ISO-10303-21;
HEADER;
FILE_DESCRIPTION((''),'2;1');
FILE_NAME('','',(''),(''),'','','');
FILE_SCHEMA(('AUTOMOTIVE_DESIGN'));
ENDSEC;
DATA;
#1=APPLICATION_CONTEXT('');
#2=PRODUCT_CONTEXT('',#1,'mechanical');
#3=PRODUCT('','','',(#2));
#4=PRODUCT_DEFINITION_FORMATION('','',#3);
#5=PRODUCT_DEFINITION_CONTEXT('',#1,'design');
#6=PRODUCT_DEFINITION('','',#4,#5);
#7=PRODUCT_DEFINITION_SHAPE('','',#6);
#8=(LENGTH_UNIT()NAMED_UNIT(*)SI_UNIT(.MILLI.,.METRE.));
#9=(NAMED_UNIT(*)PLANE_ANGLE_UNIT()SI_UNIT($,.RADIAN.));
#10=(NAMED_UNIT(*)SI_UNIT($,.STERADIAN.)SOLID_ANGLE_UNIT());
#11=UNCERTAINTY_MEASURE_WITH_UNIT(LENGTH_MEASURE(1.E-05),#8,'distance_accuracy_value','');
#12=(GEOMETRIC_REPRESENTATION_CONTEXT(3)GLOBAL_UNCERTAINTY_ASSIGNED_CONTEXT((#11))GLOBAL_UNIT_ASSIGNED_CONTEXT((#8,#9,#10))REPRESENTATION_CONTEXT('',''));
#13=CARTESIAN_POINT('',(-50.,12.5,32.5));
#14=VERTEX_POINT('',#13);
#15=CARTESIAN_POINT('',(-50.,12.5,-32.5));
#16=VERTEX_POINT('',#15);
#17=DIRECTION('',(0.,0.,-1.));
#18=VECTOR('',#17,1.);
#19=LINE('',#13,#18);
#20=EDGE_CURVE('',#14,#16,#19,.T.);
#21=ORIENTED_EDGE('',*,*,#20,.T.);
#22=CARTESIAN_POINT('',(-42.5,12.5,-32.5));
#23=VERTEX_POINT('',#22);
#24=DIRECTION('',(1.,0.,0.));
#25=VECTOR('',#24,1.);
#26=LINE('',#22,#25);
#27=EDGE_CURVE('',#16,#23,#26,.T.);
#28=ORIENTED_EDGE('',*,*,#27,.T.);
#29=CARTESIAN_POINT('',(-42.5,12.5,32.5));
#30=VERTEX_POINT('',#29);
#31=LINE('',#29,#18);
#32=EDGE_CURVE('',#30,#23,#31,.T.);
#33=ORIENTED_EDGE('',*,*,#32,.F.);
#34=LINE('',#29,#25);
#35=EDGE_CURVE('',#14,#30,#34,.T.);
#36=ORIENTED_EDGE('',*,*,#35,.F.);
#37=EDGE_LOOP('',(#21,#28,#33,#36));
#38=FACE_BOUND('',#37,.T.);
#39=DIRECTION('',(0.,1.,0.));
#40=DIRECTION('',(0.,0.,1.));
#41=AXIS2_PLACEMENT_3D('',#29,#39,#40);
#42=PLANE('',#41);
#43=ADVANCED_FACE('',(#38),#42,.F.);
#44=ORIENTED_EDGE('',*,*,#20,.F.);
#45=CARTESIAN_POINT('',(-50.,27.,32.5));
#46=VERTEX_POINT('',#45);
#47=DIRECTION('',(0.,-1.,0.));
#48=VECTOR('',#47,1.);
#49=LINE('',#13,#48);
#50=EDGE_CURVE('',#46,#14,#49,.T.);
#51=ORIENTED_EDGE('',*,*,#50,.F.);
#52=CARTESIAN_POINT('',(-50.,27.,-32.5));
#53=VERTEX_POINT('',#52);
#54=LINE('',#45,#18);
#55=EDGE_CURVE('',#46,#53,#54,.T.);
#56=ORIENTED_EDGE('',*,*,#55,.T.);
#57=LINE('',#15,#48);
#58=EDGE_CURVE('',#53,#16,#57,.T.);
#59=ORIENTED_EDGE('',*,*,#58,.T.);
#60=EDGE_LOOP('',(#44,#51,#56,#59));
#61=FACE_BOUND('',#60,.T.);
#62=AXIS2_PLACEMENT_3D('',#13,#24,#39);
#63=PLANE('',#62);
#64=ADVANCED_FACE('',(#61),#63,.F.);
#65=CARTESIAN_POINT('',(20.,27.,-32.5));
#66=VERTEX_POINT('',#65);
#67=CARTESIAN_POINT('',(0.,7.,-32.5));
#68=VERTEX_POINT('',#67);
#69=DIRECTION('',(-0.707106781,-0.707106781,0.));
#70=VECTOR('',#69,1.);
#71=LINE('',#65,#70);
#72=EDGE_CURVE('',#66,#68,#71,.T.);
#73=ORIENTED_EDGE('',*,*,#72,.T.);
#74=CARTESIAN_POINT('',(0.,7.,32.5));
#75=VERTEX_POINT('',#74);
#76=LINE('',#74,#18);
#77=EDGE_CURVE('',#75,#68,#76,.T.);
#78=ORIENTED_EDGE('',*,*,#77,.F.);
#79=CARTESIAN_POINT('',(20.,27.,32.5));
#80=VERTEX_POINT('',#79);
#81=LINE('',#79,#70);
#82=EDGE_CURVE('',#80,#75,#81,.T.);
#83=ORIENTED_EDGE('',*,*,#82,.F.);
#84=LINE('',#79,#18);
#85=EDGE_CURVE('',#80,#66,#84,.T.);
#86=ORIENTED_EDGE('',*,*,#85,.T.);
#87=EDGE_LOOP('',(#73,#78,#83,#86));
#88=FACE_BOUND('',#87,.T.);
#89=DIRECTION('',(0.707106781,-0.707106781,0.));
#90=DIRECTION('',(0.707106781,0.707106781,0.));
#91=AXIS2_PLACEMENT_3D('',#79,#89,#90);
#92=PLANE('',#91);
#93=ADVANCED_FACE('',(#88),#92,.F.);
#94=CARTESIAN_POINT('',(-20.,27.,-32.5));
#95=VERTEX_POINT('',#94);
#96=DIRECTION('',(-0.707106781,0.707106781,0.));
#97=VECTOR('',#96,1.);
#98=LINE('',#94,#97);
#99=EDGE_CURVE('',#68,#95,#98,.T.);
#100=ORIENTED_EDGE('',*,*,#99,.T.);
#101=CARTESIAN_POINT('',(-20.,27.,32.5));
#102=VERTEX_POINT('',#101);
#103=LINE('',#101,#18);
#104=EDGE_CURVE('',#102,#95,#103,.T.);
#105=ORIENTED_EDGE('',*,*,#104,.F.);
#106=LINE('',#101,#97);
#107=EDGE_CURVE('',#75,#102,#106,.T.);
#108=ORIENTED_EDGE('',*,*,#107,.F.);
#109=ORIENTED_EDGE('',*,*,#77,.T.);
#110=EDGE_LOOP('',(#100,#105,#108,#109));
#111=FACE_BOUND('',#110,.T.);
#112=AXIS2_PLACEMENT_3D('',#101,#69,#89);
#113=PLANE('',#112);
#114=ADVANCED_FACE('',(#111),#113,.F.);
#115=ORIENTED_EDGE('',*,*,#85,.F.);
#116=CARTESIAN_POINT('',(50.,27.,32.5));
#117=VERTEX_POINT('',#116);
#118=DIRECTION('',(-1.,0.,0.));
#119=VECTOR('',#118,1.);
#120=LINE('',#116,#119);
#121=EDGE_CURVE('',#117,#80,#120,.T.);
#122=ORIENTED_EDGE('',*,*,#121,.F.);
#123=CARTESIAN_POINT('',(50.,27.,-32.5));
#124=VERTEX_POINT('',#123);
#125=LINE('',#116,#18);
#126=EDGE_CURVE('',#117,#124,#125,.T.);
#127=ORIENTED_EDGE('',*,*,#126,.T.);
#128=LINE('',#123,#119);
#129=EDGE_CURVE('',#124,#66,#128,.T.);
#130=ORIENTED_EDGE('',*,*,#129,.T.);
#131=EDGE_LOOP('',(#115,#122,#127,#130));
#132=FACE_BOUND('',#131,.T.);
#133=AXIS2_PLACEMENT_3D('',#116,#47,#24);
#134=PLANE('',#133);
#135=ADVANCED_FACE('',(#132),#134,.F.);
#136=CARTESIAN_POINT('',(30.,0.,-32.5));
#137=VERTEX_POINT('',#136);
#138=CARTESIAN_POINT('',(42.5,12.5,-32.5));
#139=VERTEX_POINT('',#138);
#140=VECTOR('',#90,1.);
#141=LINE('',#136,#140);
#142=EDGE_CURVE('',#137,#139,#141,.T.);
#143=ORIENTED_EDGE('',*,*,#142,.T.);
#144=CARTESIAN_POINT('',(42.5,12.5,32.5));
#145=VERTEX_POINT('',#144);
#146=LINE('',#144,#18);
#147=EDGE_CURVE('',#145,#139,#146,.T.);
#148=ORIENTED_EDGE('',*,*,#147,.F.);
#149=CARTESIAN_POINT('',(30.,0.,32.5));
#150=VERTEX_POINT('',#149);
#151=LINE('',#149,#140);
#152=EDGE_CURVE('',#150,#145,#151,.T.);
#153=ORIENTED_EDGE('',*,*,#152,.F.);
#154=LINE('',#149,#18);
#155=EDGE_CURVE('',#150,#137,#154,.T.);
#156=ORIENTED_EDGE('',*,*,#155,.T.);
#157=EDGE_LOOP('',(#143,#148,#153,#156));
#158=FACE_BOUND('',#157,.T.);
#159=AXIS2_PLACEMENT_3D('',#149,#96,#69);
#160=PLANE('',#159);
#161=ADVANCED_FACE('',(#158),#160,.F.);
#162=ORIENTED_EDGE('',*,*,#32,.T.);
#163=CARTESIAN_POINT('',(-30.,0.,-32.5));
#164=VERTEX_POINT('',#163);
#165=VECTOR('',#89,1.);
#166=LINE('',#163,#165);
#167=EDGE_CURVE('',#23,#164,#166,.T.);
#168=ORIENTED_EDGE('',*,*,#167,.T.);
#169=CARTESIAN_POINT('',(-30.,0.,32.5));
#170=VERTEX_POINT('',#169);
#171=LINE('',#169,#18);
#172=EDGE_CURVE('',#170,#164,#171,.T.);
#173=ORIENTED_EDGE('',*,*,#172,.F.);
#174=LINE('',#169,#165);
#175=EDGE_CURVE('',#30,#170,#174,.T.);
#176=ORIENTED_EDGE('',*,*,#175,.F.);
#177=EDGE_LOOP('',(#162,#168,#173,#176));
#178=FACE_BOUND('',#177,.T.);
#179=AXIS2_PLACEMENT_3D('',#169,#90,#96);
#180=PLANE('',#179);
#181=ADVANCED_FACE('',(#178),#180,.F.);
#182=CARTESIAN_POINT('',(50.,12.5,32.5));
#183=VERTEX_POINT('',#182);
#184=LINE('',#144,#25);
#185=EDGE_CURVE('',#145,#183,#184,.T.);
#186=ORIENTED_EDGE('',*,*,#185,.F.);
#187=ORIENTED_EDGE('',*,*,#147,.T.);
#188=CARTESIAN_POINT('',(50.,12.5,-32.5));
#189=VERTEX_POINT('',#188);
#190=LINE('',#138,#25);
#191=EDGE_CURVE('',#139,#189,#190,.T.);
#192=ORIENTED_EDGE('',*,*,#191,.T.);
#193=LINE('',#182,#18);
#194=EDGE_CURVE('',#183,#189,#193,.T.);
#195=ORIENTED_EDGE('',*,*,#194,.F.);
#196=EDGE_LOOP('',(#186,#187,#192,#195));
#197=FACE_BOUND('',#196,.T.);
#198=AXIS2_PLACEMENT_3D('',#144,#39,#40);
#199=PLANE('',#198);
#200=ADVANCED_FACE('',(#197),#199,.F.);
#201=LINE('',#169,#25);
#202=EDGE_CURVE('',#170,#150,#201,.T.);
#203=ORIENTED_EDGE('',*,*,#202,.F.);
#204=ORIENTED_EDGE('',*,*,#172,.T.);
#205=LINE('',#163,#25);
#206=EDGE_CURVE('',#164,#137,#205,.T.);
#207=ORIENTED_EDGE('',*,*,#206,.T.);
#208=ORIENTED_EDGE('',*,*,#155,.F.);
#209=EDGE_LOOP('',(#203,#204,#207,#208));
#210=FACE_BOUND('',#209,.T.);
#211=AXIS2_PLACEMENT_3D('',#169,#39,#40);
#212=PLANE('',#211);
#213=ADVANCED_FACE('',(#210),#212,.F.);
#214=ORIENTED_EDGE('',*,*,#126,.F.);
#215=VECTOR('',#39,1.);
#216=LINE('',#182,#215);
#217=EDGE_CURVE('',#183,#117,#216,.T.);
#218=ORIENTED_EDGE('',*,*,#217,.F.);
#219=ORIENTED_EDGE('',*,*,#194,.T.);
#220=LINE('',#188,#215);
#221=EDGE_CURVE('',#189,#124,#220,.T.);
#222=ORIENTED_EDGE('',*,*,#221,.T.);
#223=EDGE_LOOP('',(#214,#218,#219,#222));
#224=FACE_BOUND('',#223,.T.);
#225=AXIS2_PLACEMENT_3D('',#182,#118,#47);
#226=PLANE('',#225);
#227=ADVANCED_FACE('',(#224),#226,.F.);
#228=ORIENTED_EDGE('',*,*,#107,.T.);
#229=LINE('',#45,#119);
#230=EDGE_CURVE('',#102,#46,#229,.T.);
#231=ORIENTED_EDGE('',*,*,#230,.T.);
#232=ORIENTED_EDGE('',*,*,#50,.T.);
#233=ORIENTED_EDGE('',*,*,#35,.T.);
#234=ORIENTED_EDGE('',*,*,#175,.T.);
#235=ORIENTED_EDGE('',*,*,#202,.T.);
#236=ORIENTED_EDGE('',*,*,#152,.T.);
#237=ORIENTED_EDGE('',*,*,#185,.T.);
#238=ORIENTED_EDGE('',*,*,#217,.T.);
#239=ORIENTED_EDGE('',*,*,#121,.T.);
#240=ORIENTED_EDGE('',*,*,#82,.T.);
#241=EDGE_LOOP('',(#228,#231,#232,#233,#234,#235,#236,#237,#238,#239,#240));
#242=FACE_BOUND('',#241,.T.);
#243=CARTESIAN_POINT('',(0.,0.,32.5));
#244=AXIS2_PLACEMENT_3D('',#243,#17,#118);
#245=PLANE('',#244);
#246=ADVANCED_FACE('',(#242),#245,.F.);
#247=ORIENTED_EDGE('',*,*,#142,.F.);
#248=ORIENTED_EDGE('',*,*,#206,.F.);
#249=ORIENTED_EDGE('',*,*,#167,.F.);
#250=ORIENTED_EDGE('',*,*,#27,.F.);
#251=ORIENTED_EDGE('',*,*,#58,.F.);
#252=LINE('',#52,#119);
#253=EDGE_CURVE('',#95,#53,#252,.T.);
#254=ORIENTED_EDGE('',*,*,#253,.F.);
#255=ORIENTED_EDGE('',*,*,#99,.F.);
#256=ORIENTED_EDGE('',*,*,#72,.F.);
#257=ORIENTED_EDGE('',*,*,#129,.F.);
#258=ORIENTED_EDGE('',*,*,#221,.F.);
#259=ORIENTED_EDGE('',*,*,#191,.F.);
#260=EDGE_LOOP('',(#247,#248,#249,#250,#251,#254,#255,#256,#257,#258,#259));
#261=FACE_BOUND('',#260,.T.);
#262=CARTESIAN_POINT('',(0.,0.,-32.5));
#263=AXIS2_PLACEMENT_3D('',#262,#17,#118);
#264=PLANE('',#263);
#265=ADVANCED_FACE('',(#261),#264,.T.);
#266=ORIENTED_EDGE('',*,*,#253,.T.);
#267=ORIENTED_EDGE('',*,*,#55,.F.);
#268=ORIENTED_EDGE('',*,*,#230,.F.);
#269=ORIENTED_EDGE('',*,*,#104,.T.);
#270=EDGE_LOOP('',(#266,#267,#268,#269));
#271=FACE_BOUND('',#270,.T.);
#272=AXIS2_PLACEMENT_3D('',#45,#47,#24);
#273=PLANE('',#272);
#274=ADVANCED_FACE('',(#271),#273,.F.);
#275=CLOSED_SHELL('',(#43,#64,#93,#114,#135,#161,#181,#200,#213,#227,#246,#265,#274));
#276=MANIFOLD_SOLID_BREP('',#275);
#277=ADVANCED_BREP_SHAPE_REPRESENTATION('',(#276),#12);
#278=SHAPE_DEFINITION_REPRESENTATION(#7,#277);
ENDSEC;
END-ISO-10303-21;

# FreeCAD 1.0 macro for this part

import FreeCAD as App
import Part
import Sketcher
from FreeCAD import Vector
Q = App.Units.Quantity

doc = App.newDocument("Part")
body = doc.addObject("PartDesign::Body", "Body")

# Sketch on XY plane
sketch1 = body.newObject("Sketcher::SketchObject", "Sketch")
sketch1.AttachmentSupport = (doc.getObject("XY_Plane"), [""])
sketch1.MapMode = "FlatFace"
sketch1.addGeometry(Part.LineSegment(Vector(-30, 0, 0), Vector(30, 0, 0)), False)
sketch1.addGeometry(Part.LineSegment(Vector(30, 0, 0), Vector(42.5, 12.5, 0)), False)
sketch1.addGeometry(Part.LineSegment(Vector(42.5, 12.5, 0), Vector(50, 12.5, 0)), False)
sketch1.addGeometry(Part.LineSegment(Vector(50, 12.5, 0), Vector(50, 27, 0)), False)
sketch1.addGeometry(Part.LineSegment(Vector(50, 27, 0), Vector(20, 27, 0)), False)
sketch1.addGeometry(Part.LineSegment(Vector(20, 27, 0), Vector(0, 7, 0)), False)
sketch1.addGeometry(Part.LineSegment(Vector(0, 7, 0), Vector(-20, 27, 0)), False)
sketch1.addGeometry(Part.LineSegment(Vector(-20, 27, 0), Vector(-50, 27, 0)), False)
sketch1.addGeometry(Part.LineSegment(Vector(-50, 27, 0), Vector(-50, 12.5, 0)), False)
sketch1.addGeometry(Part.LineSegment(Vector(-50, 12.5, 0), Vector(-42.5, 12.5, 0)), False)
sketch1.addGeometry(Part.LineSegment(Vector(-42.5, 12.5, 0), Vector(-30, 0, 0)), False)
sketch1.addConstraint(Sketcher.Constraint("Coincident", 0, 2, 1, 1))
sketch1.addConstraint(Sketcher.Constraint("Coincident", 1, 2, 2, 1))
sketch1.addConstraint(Sketcher.Constraint("Coincident", 2, 2, 3, 1))
sketch1.addConstraint(Sketcher.Constraint("Coincident", 3, 2, 4, 1))
sketch1.addConstraint(Sketcher.Constraint("Coincident", 4, 2, 5, 1))
sketch1.addConstraint(Sketcher.Constraint("Coincident", 5, 2, 6, 1))
sketch1.addConstraint(Sketcher.Constraint("Coincident", 6, 2, 7, 1))
sketch1.addConstraint(Sketcher.Constraint("Coincident", 7, 2, 8, 1))
sketch1.addConstraint(Sketcher.Constraint("Coincident", 8, 2, 9, 1))
sketch1.addConstraint(Sketcher.Constraint("Coincident", 9, 2, 10, 1))
sketch1.addConstraint(Sketcher.Constraint("Coincident", 10, 2, 0, 1))
sketch1.addConstraint(Sketcher.Constraint("Horizontal", 0))
sketch1.addConstraint(Sketcher.Constraint("Horizontal", 2))
sketch1.addConstraint(Sketcher.Constraint("Vertical", 3))
sketch1.addConstraint(Sketcher.Constraint("Horizontal", 4))
sketch1.addConstraint(Sketcher.Constraint("Horizontal", 7))
sketch1.addConstraint(Sketcher.Constraint("Vertical", 8))
sketch1.addConstraint(Sketcher.Constraint("Horizontal", 9))
sketch1.addConstraint(Sketcher.Constraint("Symmetric", 0, 2, 10, 2, -1, 1))
sketch1.addConstraint(Sketcher.Constraint("Symmetric", 4, 2, 6, 2, -2))
sketch1.addConstraint(Sketcher.Constraint("Symmetric", 2, 2, 8, 2, -2))
sketch1.addConstraint(Sketcher.Constraint("PointOnObject", 5, 2, -2))
sketch1.addConstraint(Sketcher.Constraint("Parallel", 1, 5))
sketch1.addConstraint(Sketcher.Constraint("Perpendicular", 5, 6))
sketch1.addConstraint(Sketcher.Constraint("Parallel", 6, 10))
sketch1.addConstraint(Sketcher.Constraint("DistanceX", 0, 1, 0, 2, Q("60 mm")))
sketch1.addConstraint(Sketcher.Constraint("DistanceX", 4, 2, 4, 1, Q("30 mm")))
sketch1.addConstraint(Sketcher.Constraint("DistanceX", 2, 1, 2, 2, Q("7.5 mm")))
sketch1.addConstraint(Sketcher.Constraint("DistanceY", 3, 1, 3, 2, Q("14.5 mm")))
sketch1.addConstraint(Sketcher.Constraint("DistanceX", -1, 1, 2, 2, Q("50 mm")))
pad1 = body.newObject("PartDesign::Pad", "Pad")
pad1.Profile = sketch1
pad1.Length = 65
pad1.Midplane = True

doc.recompute()
